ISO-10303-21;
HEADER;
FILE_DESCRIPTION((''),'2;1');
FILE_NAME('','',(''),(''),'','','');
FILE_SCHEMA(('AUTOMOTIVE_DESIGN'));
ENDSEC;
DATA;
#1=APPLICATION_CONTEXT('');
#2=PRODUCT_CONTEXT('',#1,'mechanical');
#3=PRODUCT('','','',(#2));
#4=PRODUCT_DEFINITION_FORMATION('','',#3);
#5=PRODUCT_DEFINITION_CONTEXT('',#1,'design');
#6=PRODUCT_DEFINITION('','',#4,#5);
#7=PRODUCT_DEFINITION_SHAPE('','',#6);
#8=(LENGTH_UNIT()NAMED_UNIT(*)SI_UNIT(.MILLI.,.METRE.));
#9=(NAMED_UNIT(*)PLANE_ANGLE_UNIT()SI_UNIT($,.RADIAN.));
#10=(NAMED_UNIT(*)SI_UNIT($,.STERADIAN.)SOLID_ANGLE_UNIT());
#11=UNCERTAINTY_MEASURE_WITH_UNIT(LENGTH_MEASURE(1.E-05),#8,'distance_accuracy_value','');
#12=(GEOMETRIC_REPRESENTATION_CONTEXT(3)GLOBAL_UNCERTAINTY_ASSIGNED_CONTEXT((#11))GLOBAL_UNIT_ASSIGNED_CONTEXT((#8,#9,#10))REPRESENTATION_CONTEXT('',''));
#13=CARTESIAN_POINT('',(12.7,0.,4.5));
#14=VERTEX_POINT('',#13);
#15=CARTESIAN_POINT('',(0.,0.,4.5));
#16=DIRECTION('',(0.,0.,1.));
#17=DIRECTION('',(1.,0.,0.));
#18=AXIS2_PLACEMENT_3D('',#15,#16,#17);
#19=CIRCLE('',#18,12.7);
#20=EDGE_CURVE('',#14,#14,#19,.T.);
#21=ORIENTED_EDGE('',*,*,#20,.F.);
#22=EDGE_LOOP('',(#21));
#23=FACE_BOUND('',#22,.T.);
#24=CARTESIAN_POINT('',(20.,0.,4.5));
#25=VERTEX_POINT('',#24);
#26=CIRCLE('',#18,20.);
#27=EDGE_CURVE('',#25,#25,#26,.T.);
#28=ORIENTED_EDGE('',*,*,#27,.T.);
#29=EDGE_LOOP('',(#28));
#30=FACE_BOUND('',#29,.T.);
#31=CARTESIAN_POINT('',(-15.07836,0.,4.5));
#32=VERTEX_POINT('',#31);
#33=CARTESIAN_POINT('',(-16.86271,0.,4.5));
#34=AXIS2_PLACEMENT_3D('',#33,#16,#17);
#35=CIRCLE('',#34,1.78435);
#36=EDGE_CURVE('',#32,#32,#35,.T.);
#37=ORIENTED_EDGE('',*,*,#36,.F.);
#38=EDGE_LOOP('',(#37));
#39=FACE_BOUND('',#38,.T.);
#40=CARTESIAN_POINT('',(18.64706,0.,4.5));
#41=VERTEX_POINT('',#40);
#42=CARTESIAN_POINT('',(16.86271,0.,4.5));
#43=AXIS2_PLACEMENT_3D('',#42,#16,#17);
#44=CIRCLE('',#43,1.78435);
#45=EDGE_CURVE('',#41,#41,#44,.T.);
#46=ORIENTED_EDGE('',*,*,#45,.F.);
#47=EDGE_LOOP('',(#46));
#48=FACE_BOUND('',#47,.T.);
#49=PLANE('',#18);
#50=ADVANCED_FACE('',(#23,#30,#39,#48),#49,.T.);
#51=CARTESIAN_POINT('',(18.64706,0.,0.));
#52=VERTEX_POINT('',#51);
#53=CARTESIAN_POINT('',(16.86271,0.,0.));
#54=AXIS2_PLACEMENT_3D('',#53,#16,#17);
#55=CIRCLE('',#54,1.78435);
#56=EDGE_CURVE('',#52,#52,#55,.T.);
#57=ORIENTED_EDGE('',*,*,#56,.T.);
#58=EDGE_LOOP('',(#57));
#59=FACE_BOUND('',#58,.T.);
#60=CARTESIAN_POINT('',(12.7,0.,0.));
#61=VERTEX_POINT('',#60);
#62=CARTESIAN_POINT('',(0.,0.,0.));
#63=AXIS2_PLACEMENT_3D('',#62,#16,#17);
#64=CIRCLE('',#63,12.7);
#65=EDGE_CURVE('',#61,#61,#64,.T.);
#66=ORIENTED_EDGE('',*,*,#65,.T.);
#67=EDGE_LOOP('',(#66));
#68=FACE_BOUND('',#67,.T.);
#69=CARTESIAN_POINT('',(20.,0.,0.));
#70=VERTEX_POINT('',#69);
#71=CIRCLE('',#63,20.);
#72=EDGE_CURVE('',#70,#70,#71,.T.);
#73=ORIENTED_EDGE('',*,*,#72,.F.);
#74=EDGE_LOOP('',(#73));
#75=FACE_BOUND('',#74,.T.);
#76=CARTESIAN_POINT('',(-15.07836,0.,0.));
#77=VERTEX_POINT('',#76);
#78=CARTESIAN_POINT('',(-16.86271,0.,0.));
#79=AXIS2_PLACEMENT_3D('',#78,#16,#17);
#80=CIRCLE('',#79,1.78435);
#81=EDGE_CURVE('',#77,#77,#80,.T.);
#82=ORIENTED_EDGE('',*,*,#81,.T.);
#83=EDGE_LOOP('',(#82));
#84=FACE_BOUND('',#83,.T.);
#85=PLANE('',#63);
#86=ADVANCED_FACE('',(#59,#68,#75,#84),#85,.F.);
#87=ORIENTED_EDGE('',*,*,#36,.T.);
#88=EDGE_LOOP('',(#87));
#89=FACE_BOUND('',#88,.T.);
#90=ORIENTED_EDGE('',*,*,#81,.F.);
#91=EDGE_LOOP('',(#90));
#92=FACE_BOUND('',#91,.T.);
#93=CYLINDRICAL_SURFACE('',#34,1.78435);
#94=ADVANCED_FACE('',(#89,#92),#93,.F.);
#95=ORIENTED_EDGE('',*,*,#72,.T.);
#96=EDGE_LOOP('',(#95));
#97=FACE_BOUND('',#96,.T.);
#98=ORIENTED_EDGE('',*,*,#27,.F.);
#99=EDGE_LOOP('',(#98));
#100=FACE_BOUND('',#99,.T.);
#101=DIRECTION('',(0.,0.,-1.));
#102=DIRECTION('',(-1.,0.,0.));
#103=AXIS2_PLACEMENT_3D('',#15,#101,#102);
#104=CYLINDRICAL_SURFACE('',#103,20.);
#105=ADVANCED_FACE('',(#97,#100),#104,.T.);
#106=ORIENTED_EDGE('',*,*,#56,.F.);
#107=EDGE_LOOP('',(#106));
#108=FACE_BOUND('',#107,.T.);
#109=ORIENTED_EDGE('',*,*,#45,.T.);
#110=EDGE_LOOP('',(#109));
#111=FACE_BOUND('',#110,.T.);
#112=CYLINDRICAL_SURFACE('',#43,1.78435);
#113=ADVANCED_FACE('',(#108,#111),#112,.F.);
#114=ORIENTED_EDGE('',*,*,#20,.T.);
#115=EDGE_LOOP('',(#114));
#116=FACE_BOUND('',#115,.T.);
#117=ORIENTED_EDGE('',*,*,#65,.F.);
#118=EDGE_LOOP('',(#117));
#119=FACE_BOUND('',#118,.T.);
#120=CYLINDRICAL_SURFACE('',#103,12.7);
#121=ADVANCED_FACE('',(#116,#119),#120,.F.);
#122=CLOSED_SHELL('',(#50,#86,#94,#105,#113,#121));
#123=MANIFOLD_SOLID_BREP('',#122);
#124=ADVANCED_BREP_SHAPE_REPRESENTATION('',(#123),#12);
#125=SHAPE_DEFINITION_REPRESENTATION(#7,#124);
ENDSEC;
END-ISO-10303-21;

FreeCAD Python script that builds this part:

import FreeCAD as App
import Part
import Sketcher
from FreeCAD import Vector
Q = App.Units.Quantity

doc = App.newDocument("Part")
body = doc.addObject("PartDesign::Body", "Body")

# Sketch on XY plane
sketch1 = body.newObject("Sketcher::SketchObject", "Sketch")
sketch1.AttachmentSupport = (doc.getObject("XY_Plane"), [""])
sketch1.MapMode = "FlatFace"
sketch1.addGeometry([
    Part.Circle(Vector(0, 0, 0), Vector(0, 0, 1), 20),
    Part.Circle(Vector(0, 0, 0), Vector(0, 0, 1), 12.7),
], False)
sketch1.addConstraint([
    Sketcher.Constraint("Coincident", 0, 3, -1, 1),
    Sketcher.Constraint("Coincident", 1, 3, -1, 1),
    Sketcher.Constraint("Diameter", 0, Q("40 mm")),
    Sketcher.Constraint("Diameter", 1, Q("25.4 mm")),
])
pad1 = body.newObject("PartDesign::Pad", "Pad")
pad1.Profile = sketch1
pad1.Length = 4.5

# Sketch on XY plane
sketch2 = body.newObject("Sketcher::SketchObject", "Sketch001")
sketch2.AttachmentSupport = (doc.getObject("XY_Plane"), [""])
sketch2.MapMode = "FlatFace"
sketch2.AttachmentOffset = App.Placement(Vector(0, 0, 4.5), App.Rotation())
sketch2.addGeometry([
    Part.Circle(Vector(-16.86271, 0, 0), Vector(0, 0, 1), 1.78435),
    Part.Circle(Vector(16.86271, 0, 0), Vector(0, 0, 1), 1.78435),
], False)
sketch2.addConstraint([
    Sketcher.Constraint("Equal", 0, 1),
    Sketcher.Constraint("Symmetric", 0, 3, 1, 3, -1, 1),
    Sketcher.Constraint("PointOnObject", 0, 3, -1),
    Sketcher.Constraint("Diameter", 0, Q("3.5687 mm")),
    Sketcher.Constraint("DistanceX", 0, 3, -1, 1, Q("16.86271 mm")),
])
doc.recompute()
hole = body.newObject("PartDesign::Hole", "Hole")
hole.Profile = sketch2
hole.ThreadType = "None"
hole.Diameter = 3.5687
hole.DepthType = "ThroughAll"

doc.recompute()
